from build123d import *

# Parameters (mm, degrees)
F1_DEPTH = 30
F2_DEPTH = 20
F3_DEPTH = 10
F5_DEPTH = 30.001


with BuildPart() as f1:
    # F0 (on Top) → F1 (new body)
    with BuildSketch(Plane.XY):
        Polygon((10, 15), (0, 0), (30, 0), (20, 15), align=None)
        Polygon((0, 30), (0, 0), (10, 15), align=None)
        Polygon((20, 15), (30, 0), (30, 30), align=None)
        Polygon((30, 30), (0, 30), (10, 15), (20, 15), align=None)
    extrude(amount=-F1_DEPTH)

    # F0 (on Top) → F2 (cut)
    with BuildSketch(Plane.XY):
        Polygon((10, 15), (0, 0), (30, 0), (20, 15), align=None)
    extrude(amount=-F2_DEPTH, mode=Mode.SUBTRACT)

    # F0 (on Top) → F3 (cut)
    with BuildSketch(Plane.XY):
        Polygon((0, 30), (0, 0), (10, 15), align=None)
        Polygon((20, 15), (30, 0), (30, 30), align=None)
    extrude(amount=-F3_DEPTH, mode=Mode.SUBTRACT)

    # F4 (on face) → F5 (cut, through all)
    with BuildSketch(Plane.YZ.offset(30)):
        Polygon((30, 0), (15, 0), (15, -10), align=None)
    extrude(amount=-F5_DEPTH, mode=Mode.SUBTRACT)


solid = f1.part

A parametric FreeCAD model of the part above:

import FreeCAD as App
import Part
import Sketcher
Q = App.Units.Quantity


def add_polygon(sketch, points):
    """Adds a closed chain of lines whose ends are joined by coincident constraints."""
    first, n = sketch.GeometryCount, len(points)
    for a, b in zip(points, points[1:] + points[:1]):
        sketch.addGeometry(Part.LineSegment(App.Vector(*a, 0), App.Vector(*b, 0)), False)
    for i in range(n):
        sketch.addConstraint(Sketcher.Constraint("Coincident", first + i, 2, first + (i + 1) % n, 1))

doc = App.newDocument("Part")
body = doc.addObject("PartDesign::Body", "Body")

# Sketch on XY plane
sketch1 = body.newObject("Sketcher::SketchObject", "Sketch")
sketch1.AttachmentSupport = (doc.getObject("XY_Plane"), [""])
sketch1.MapMode = "FlatFace"
add_polygon(sketch1, [(0, 0), (30, 0), (30, 30), (0, 30)])  # lines 0-3
sketch1.addConstraint([
    Sketcher.Constraint("Horizontal", 0),
    Sketcher.Constraint("Vertical", 1),
    Sketcher.Constraint("Horizontal", 2),
    Sketcher.Constraint("Vertical", 3),
    Sketcher.Constraint("Coincident", 3, 2, -1, 1),
    Sketcher.Constraint("Equal", 2, 1),
    Sketcher.Constraint("DistanceX", 0, 1, 0, 2, Q("30 mm")),
])
pad1 = body.newObject("PartDesign::Pad", "Pad")
pad1.Profile = sketch1
pad1.Length = 30
pad1.Reversed = True

# Sketch on XY plane
sketch2 = body.newObject("Sketcher::SketchObject", "Sketch001")
sketch2.AttachmentSupport = (doc.getObject("XY_Plane"), [""])
sketch2.MapMode = "FlatFace"
add_polygon(sketch2, [(10, 15), (0, 0), (30, 0), (20, 15)])  # lines 0-3
sketch2.addConstraint([
    Sketcher.Constraint("Horizontal", 1),
    Sketcher.Constraint("Horizontal", 3),
    Sketcher.Constraint("Coincident", 0, 2, -1, 1),
    Sketcher.Constraint("Equal", 0, 2),
    Sketcher.Constraint("DistanceX", 1, 1, 1, 2, Q("30 mm")),
    Sketcher.Constraint("DistanceX", 3, 2, 3, 1, Q("10 mm")),
    Sketcher.Constraint("DistanceY", -1, 1, 2, 2, Q("15 mm")),
])
pocket1 = body.newObject("PartDesign::Pocket", "Pocket")
pocket1.Profile = sketch2
pocket1.Length = 20

# Sketch on XY plane
sketch3 = body.newObject("Sketcher::SketchObject", "Sketch002")
sketch3.AttachmentSupport = (doc.getObject("XY_Plane"), [""])
sketch3.MapMode = "FlatFace"
add_polygon(sketch3, [(0, 30), (0, 0), (10, 15)])  # lines 0-2
add_polygon(sketch3, [(20, 15), (30, 0), (30, 30)])  # lines 3-5
sketch3.addConstraint([
    Sketcher.Constraint("Vertical", 0),
    Sketcher.Constraint("Vertical", 4),
    Sketcher.Constraint("Coincident", 0, 2, -1, 1),
    Sketcher.Constraint("PointOnObject", 3, 2, -1),
    Sketcher.Constraint("Parallel", 2, 3),
    Sketcher.Constraint("Parallel", 1, 5),
    Sketcher.Constraint("Horizontal", 2, 2, 4, 2),
    Sketcher.Constraint("Horizontal", 1, 2, 5, 2),
    Sketcher.Constraint("DistanceY", 0, 2, 0, 1, Q("30 mm")),
    Sketcher.Constraint("DistanceX", -1, 1, 1, 2, Q("10 mm")),
    Sketcher.Constraint("DistanceX", -1, 1, 3, 2, Q("30 mm")),
])
pocket2 = body.newObject("PartDesign::Pocket", "Pocket001")
pocket2.Profile = sketch3
pocket2.Length = 10

# Sketch on YZ plane
sketch4 = body.newObject("Sketcher::SketchObject", "Sketch003")
sketch4.AttachmentSupport = (doc.getObject("YZ_Plane"), [""])
sketch4.MapMode = "FlatFace"
sketch4.AttachmentOffset = App.Placement(App.Vector(0, 0, 30), App.Rotation())
add_polygon(sketch4, [(30, 0), (15, 0), (15, -10)])  # lines 0-2
sketch4.addConstraint([
    Sketcher.Constraint("Horizontal", 0),
    Sketcher.Constraint("Vertical", 1),
    Sketcher.Constraint("PointOnObject", 0, 2, -1),
    Sketcher.Constraint("DistanceX", 0, 2, 0, 1, Q("15 mm")),
    Sketcher.Constraint("DistanceY", 1, 2, 1, 1, Q("10 mm")),
    Sketcher.Constraint("DistanceX", -1, 1, 0, 2, Q("15 mm")),
])
pocket3 = body.newObject("PartDesign::Pocket", "Pocket002")
pocket3.Profile = sketch4
pocket3.Type = "ThroughAll"

doc.recompute()
